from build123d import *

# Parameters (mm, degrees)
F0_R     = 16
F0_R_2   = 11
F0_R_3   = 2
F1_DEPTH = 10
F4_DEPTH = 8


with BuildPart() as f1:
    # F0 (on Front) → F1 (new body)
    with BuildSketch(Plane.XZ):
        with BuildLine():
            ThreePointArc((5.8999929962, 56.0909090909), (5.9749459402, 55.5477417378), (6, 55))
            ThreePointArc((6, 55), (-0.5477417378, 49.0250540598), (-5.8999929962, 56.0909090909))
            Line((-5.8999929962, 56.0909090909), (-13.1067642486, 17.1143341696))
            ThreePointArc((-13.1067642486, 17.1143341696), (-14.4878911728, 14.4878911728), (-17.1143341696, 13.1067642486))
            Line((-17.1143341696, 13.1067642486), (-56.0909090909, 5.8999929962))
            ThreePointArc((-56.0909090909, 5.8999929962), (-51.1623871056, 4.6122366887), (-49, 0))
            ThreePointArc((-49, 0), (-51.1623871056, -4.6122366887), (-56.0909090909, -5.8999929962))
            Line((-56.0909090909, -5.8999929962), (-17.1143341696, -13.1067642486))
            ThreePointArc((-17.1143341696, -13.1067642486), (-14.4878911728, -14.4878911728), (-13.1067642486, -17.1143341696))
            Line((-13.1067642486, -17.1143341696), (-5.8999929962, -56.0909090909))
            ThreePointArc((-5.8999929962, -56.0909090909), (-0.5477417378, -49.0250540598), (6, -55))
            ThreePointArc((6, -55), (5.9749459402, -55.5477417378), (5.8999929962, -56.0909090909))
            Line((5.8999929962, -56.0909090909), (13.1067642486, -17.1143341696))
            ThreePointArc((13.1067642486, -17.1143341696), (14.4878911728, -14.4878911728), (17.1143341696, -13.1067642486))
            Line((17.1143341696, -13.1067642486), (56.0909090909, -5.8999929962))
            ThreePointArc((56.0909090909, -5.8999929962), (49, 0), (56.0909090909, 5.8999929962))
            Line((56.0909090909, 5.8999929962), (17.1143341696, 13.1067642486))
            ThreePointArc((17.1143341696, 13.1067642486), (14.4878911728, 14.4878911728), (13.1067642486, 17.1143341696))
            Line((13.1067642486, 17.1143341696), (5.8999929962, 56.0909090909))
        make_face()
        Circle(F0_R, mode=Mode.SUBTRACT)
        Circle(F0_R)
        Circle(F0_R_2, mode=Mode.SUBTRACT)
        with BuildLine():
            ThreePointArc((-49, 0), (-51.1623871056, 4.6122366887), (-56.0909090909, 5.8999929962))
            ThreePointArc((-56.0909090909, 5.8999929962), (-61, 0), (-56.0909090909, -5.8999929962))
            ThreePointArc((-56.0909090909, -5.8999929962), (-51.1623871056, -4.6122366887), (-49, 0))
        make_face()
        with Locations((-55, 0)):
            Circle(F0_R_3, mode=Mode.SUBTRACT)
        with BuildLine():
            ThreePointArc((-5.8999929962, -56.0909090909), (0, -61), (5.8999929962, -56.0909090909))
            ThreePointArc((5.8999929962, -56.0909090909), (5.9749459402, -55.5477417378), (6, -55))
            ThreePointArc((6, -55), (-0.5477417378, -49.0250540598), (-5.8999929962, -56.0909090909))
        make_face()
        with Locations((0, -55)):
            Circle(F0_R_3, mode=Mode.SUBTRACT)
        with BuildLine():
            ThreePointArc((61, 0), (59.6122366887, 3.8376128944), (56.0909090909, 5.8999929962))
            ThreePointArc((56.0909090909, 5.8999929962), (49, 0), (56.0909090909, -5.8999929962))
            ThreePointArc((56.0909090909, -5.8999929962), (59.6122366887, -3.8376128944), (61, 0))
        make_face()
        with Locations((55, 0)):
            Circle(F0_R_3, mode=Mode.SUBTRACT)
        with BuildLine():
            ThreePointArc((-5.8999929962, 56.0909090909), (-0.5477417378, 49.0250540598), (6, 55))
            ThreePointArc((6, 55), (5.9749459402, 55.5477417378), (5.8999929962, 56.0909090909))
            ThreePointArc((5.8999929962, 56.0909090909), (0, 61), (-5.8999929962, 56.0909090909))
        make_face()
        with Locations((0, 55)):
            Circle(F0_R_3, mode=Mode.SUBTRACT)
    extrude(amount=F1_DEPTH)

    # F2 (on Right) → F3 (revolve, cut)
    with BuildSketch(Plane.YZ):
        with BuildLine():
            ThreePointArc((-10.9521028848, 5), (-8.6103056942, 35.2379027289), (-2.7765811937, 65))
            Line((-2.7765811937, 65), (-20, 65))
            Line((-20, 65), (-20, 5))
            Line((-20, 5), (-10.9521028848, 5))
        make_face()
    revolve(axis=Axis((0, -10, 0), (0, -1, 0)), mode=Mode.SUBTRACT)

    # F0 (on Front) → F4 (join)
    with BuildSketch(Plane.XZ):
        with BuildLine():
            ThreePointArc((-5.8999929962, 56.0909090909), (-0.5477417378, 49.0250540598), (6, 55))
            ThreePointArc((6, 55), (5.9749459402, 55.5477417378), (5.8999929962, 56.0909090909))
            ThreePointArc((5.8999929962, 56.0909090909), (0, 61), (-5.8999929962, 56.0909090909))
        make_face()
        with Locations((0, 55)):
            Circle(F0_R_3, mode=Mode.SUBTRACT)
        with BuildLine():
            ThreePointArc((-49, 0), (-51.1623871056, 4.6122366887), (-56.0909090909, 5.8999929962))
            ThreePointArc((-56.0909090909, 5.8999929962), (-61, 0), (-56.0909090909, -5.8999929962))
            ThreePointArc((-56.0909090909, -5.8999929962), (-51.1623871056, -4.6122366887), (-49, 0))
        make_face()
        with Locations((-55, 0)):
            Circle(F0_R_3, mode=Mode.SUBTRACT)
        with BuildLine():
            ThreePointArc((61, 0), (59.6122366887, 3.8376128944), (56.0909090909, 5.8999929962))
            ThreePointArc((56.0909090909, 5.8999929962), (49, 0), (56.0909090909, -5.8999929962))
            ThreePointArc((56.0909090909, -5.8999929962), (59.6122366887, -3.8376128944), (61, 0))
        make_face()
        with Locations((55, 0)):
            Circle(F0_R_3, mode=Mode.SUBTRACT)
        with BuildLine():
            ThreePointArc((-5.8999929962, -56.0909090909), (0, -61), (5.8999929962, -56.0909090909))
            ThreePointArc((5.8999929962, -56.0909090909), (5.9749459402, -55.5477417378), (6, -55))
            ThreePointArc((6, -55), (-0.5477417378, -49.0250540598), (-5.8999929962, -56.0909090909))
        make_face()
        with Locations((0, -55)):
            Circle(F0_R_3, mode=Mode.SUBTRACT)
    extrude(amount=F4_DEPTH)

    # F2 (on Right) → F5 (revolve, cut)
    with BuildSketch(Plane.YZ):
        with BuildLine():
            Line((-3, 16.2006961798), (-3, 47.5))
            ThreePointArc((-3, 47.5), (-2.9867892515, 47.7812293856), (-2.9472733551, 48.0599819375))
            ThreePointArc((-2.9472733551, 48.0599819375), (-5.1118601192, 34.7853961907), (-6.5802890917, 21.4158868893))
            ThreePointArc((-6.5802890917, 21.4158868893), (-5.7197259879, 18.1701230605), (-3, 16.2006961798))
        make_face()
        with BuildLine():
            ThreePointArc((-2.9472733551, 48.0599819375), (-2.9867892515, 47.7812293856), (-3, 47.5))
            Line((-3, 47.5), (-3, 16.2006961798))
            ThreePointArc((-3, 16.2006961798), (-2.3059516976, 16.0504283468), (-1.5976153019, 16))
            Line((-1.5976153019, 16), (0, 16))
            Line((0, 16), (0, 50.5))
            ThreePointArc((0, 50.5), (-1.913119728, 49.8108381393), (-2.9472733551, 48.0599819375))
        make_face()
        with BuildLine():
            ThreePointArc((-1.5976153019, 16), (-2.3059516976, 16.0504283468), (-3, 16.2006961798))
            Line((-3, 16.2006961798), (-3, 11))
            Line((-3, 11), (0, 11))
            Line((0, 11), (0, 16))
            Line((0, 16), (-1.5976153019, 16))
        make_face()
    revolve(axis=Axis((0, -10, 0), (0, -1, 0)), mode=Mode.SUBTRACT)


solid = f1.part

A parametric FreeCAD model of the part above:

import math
import FreeCAD as App
import Part
import Sketcher
Q = App.Units.Quantity

doc = App.newDocument("Part")
body = doc.addObject("PartDesign::Body", "Body")

# Sketch on XZ plane
sketch1 = doc.addObject("Sketcher::SketchObject", "Sketch")
body.addObject(sketch1)
sketch1.AttachmentSupport = (doc.XZ_Plane, [""])
sketch1.MapMode = "FlatFace"
sketch1.addGeometry(Part.LineSegment(App.Vector(13.106764, 17.114334, 0), App.Vector(5.899993, 56.090909, 0)), False)
sketch1.addGeometry(Part.ArcOfCircle(Part.Circle(App.Vector(0, 55, 0), App.Vector(0, 0, 1), 6), math.radians(10.475682), math.radians(169.524318)), False)
sketch1.addGeometry(Part.LineSegment(App.Vector(-5.899993, 56.090909, 0), App.Vector(-13.106764, 17.114334, 0)), False)
sketch1.addGeometry(Part.ArcOfCircle(Part.Circle(App.Vector(-18.023425, 18.023425, 0), App.Vector(0, 0, 1), 5), math.radians(-79.524318), math.radians(-10.475682)), False)
sketch1.addGeometry(Part.LineSegment(App.Vector(-17.114334, 13.106764, 0), App.Vector(-56.090909, 5.899993, 0)), False)
sketch1.addGeometry(Part.ArcOfCircle(Part.Circle(App.Vector(-55, 0, 0), App.Vector(0, 0, 1), 6), math.radians(100.475682), math.radians(259.524318)), False)
sketch1.addGeometry(Part.LineSegment(App.Vector(-56.090909, -5.899993, 0), App.Vector(-17.114334, -13.106764, 0)), False)
sketch1.addGeometry(Part.ArcOfCircle(Part.Circle(App.Vector(-18.023425, -18.023425, 0), App.Vector(0, 0, 1), 5), math.radians(10.475682), math.radians(79.524318)), False)
sketch1.addGeometry(Part.LineSegment(App.Vector(-13.106764, -17.114334, 0), App.Vector(-5.899993, -56.090909, 0)), False)
sketch1.addGeometry(Part.ArcOfCircle(Part.Circle(App.Vector(0, -55, 0), App.Vector(0, 0, 1), 6), math.radians(-169.524318), math.radians(-10.475682)), False)
sketch1.addGeometry(Part.LineSegment(App.Vector(5.899993, -56.090909, 0), App.Vector(13.106764, -17.114334, 0)), False)
sketch1.addGeometry(Part.ArcOfCircle(Part.Circle(App.Vector(18.023425, -18.023425, 0), App.Vector(0, 0, 1), 5), math.radians(100.475682), math.radians(169.524318)), False)
sketch1.addGeometry(Part.LineSegment(App.Vector(17.114334, -13.106764, 0), App.Vector(56.090909, -5.899993, 0)), False)
sketch1.addGeometry(Part.ArcOfCircle(Part.Circle(App.Vector(55, 0, 0), App.Vector(0, 0, 1), 6), math.radians(-79.524318), math.radians(0)), False)
sketch1.addGeometry(Part.ArcOfCircle(Part.Circle(App.Vector(55, 0, 0), App.Vector(0, 0, 1), 6), math.radians(0), math.radians(79.524318)), False)
sketch1.addGeometry(Part.LineSegment(App.Vector(56.090909, 5.899993, 0), App.Vector(17.114334, 13.106764, 0)), False)
sketch1.addGeometry(Part.ArcOfCircle(Part.Circle(App.Vector(18.023425, 18.023425, 0), App.Vector(0, 0, 1), 5), math.radians(-169.524318), math.radians(-100.475682)), False)
sketch1.addGeometry(Part.Circle(App.Vector(0, -55, 0), App.Vector(0, 0, 1), 2), False)
sketch1.addGeometry(Part.Circle(App.Vector(-55, 0, 0), App.Vector(0, 0, 1), 2), False)
sketch1.addGeometry(Part.Circle(App.Vector(0, 0, 0), App.Vector(0, 0, 1), 11), False)
sketch1.addGeometry(Part.Circle(App.Vector(55, 0, 0), App.Vector(0, 0, 1), 2), False)
sketch1.addGeometry(Part.Circle(App.Vector(0, 55, 0), App.Vector(0, 0, 1), 2), False)
sketch1.addConstraint(Sketcher.Constraint("Tangent", 0, 2, 1, 1))
sketch1.addConstraint(Sketcher.Constraint("Tangent", 1, 2, 2, 1))
sketch1.addConstraint(Sketcher.Constraint("Tangent", 2, 2, 3, 2))
sketch1.addConstraint(Sketcher.Constraint("Tangent", 3, 1, 4, 1))
sketch1.addConstraint(Sketcher.Constraint("Tangent", 4, 2, 5, 1))
sketch1.addConstraint(Sketcher.Constraint("Tangent", 5, 2, 6, 1))
sketch1.addConstraint(Sketcher.Constraint("Tangent", 6, 2, 7, 2))
sketch1.addConstraint(Sketcher.Constraint("Tangent", 7, 1, 8, 1))
sketch1.addConstraint(Sketcher.Constraint("Tangent", 8, 2, 9, 1))
sketch1.addConstraint(Sketcher.Constraint("Tangent", 9, 2, 10, 1))
sketch1.addConstraint(Sketcher.Constraint("Tangent", 10, 2, 11, 2))
sketch1.addConstraint(Sketcher.Constraint("Tangent", 11, 1, 12, 1))
sketch1.addConstraint(Sketcher.Constraint("Tangent", 12, 2, 13, 1))
sketch1.addConstraint(Sketcher.Constraint("Tangent", 13, 2, 14, 1))
sketch1.addConstraint(Sketcher.Constraint("Tangent", 14, 2, 15, 1))
sketch1.addConstraint(Sketcher.Constraint("Tangent", 15, 2, 16, 2))
sketch1.addConstraint(Sketcher.Constraint("Tangent", 16, 1, 0, 1))
sketch1.addConstraint(Sketcher.Constraint("Coincident", 19, 3, -1, 1))
sketch1.addConstraint(Sketcher.Constraint("Coincident", 17, 3, 9, 3))
sketch1.addConstraint(Sketcher.Constraint("Coincident", 18, 3, 5, 3))
sketch1.addConstraint(Sketcher.Constraint("Coincident", 20, 3, 13, 3))
sketch1.addConstraint(Sketcher.Constraint("Coincident", 21, 3, 1, 3))
sketch1.addConstraint(Sketcher.Constraint("Equal", 1, 5))
sketch1.addConstraint(Sketcher.Constraint("Equal", 3, 7))
sketch1.addConstraint(Sketcher.Constraint("Equal", 5, 9))
sketch1.addConstraint(Sketcher.Constraint("Equal", 7, 11))
sketch1.addConstraint(Sketcher.Constraint("Equal", 9, 13))
sketch1.addConstraint(Sketcher.Constraint("Equal", 13, 14))
sketch1.addConstraint(Sketcher.Constraint("Equal", 11, 16))
sketch1.addConstraint(Sketcher.Constraint("Equal", 17, 18))
sketch1.addConstraint(Sketcher.Constraint("Equal", 18, 20))
sketch1.addConstraint(Sketcher.Constraint("Equal", 20, 21))
sketch1.addConstraint(Sketcher.Constraint("Symmetric", 1, 3, 9, 3, -1, 1))
sketch1.addConstraint(Sketcher.Constraint("Symmetric", 3, 3, 11, 3, -1, 1))
sketch1.addConstraint(Sketcher.Constraint("Symmetric", 5, 3, 13, 3, -1, 1))
sketch1.addConstraint(Sketcher.Constraint("Symmetric", 7, 3, 16, 3, -1, 1))
sketch1.addConstraint(Sketcher.Constraint("Symmetric", 7, 3, 11, 3, -2))
sketch1.addConstraint(Sketcher.Constraint("PointOnObject", 1, 3, -2))
sketch1.addConstraint(Sketcher.Constraint("PointOnObject", 5, 3, -1))
sketch1.addConstraint(Sketcher.Constraint("PointOnObject", 13, 2, -1))
sketch1.addConstraint(Sketcher.Constraint("Perpendicular", 0, 4))
sketch1.addConstraint(Sketcher.Constraint("Equal", 2, 4))
sketch1.addConstraint(Sketcher.Constraint("Diameter", 17, Q("4 mm")))
sketch1.addConstraint(Sketcher.Constraint("Diameter", 19, Q("22 mm")))
sketch1.addConstraint(Sketcher.Constraint("Radius", 1, Q("6 mm")))
sketch1.addConstraint(Sketcher.Constraint("Radius", 3, Q("5 mm")))
sketch1.addConstraint(Sketcher.Constraint("DistanceY", -1, 1, 1, 3, Q("55 mm")))
sketch1.addConstraint(Sketcher.Constraint("DistanceY", 6, 2, 2, 2, Q("30.221098 mm")))
pad1 = doc.addObject("PartDesign::Pad", "Pad")
body.addObject(pad1)
pad1.Profile = sketch1
pad1.Length = 10

# Sketch on YZ plane
sketch2 = doc.addObject("Sketcher::SketchObject", "Sketch001")
body.addObject(sketch2)
sketch2.AttachmentSupport = (doc.YZ_Plane, [""])
sketch2.MapMode = "FlatFace"
sketch2.addGeometry(Part.ArcOfCircle(Part.Circle(App.Vector(250, 0, 0), App.Vector(0, 0, 1), 261), math.radians(165.579161), math.radians(178.902313)), False)
sketch2.addGeometry(Part.LineSegment(App.Vector(-2.776581, 65, 0), App.Vector(-20, 65, 0)), False)
sketch2.addGeometry(Part.LineSegment(App.Vector(-20, 65, 0), App.Vector(-20, 5, 0)), False)
sketch2.addGeometry(Part.LineSegment(App.Vector(-20, 5, 0), App.Vector(-10.952103, 5, 0)), False)
sketch2.addConstraint(Sketcher.Constraint("Coincident", 0, 1, 1, 1))
sketch2.addConstraint(Sketcher.Constraint("Coincident", 1, 2, 2, 1))
sketch2.addConstraint(Sketcher.Constraint("Coincident", 2, 2, 3, 1))
sketch2.addConstraint(Sketcher.Constraint("Coincident", 3, 2, 0, 2))
sketch2.addConstraint(Sketcher.Constraint("Horizontal", 1))
sketch2.addConstraint(Sketcher.Constraint("Vertical", 2))
sketch2.addConstraint(Sketcher.Constraint("Horizontal", 3))
sketch2.addConstraint(Sketcher.Constraint("PointOnObject", 0, 3, -1))
sketch2.addConstraint(Sketcher.Constraint("Radius", 0, Q("261 mm")))
sketch2.addConstraint(Sketcher.Constraint("DistanceY", 2, 2, 2, 1, Q("60 mm")))
sketch2.addConstraint(Sketcher.Constraint("DistanceX", -1, 1, 0, 3, Q("250 mm")))
sketch2.addConstraint(Sketcher.Constraint("DistanceX", 1, 2, -1, 1, Q("20 mm")))
sketch2.addConstraint(Sketcher.Constraint("DistanceY", -1, 1, 1, 2, Q("65 mm")))
groove = doc.addObject("PartDesign::Groove", "Groove")
body.addObject(groove)
groove.Profile = sketch2
groove.ReferenceAxis = (sketch2, ["H_Axis"])
groove.Angle = 360

# Sketch on XZ plane
sketch3 = doc.addObject("Sketcher::SketchObject", "Sketch002")
body.addObject(sketch3)
sketch3.AttachmentSupport = (doc.XZ_Plane, [""])
sketch3.MapMode = "FlatFace"
sketch3.addGeometry(Part.ArcOfCircle(Part.Circle(App.Vector(0, 55, 0), App.Vector(0, 0, 1), 6), math.radians(0), math.radians(10.475682)), False)
sketch3.addGeometry(Part.ArcOfCircle(Part.Circle(App.Vector(0, 55, 0), App.Vector(0, 0, 1), 6), math.radians(10.475682), math.radians(360)), False)
sketch3.addGeometry(Part.Circle(App.Vector(0, 55, 0), App.Vector(0, 0, 1), 2), False)
sketch3.addGeometry(Part.ArcOfCircle(Part.Circle(App.Vector(-55, 0, 0), App.Vector(0, 0, 1), 6), math.radians(0), math.radians(100.475682)), False)
sketch3.addGeometry(Part.ArcOfCircle(Part.Circle(App.Vector(-55, 0, 0), App.Vector(0, 0, 1), 6), math.radians(100.475682), math.radians(259.524318)), False)
sketch3.addGeometry(Part.ArcOfCircle(Part.Circle(App.Vector(-55, 0, 0), App.Vector(0, 0, 1), 6), math.radians(-100.475682), math.radians(0)), False)
sketch3.addGeometry(Part.Circle(App.Vector(-55, 0, 0), App.Vector(0, 0, 1), 2), False)
sketch3.addGeometry(Part.ArcOfCircle(Part.Circle(App.Vector(55, 0, 0), App.Vector(0, 0, 1), 6), math.radians(0), math.radians(79.524318)), False)
sketch3.addGeometry(Part.ArcOfCircle(Part.Circle(App.Vector(55, 0, 0), App.Vector(0, 0, 1), 6), math.radians(79.524318), math.radians(280.475682)), False)
sketch3.addGeometry(Part.ArcOfCircle(Part.Circle(App.Vector(55, 0, 0), App.Vector(0, 0, 1), 6), math.radians(-79.524318), math.radians(0)), False)
sketch3.addGeometry(Part.Circle(App.Vector(55, 0, 0), App.Vector(0, 0, 1), 2), False)
sketch3.addGeometry(Part.ArcOfCircle(Part.Circle(App.Vector(0, -55, 0), App.Vector(0, 0, 1), 6), math.radians(-10.475682), math.radians(0)), False)
sketch3.addGeometry(Part.ArcOfCircle(Part.Circle(App.Vector(0, -55, 0), App.Vector(0, 0, 1), 6), math.radians(0), math.radians(349.524318)), False)
sketch3.addGeometry(Part.Circle(App.Vector(0, -55, 0), App.Vector(0, 0, 1), 2), False)
sketch3.addConstraint(Sketcher.Constraint("Tangent", 0, 1, 1, 2))
sketch3.addConstraint(Sketcher.Constraint("Coincident", 1, 1, 0, 2))
sketch3.addConstraint(Sketcher.Constraint("Tangent", 3, 2, 4, 1))
sketch3.addConstraint(Sketcher.Constraint("Tangent", 4, 2, 5, 1))
sketch3.addConstraint(Sketcher.Constraint("Tangent", 5, 2, 3, 1))
sketch3.addConstraint(Sketcher.Constraint("Tangent", 7, 2, 8, 1))
sketch3.addConstraint(Sketcher.Constraint("Tangent", 8, 2, 9, 1))
sketch3.addConstraint(Sketcher.Constraint("Tangent", 9, 2, 7, 1))
sketch3.addConstraint(Sketcher.Constraint("Tangent", 11, 1, 12, 2))
sketch3.addConstraint(Sketcher.Constraint("Coincident", 12, 1, 11, 2))
sketch3.addConstraint(Sketcher.Constraint("Coincident", 2, 3, 0, 3))
sketch3.addConstraint(Sketcher.Constraint("Coincident", 6, 3, 3, 3))
sketch3.addConstraint(Sketcher.Constraint("Coincident", 10, 3, 7, 3))
sketch3.addConstraint(Sketcher.Constraint("Coincident", 13, 3, 11, 3))
sketch3.addConstraint(Sketcher.Constraint("Equal", 1, 3))
sketch3.addConstraint(Sketcher.Constraint("Equal", 2, 6))
sketch3.addConstraint(Sketcher.Constraint("Equal", 5, 7))
sketch3.addConstraint(Sketcher.Constraint("Equal", 6, 10))
sketch3.addConstraint(Sketcher.Constraint("Equal", 9, 11))
sketch3.addConstraint(Sketcher.Constraint("Equal", 10, 13))
sketch3.addConstraint(Sketcher.Constraint("Symmetric", 3, 3, 7, 3, -1, 1))
sketch3.addConstraint(Sketcher.Constraint("Symmetric", 0, 3, 11, 3, -1, 1))
sketch3.addConstraint(Sketcher.Constraint("Symmetric", 3, 2, 7, 2, -2))
sketch3.addConstraint(Sketcher.Constraint("Symmetric", 1, 1, 11, 1, -1))
sketch3.addConstraint(Sketcher.Constraint("PointOnObject", 5, 2, -1))
sketch3.addConstraint(Sketcher.Constraint("PointOnObject", 9, 2, -1))
sketch3.addConstraint(Sketcher.Constraint("Horizontal", 2, 3, 0, 1))
sketch3.addConstraint(Sketcher.Constraint("Horizontal", 4, 2, 8, 2))
sketch3.addConstraint(Sketcher.Constraint("Horizontal", 13, 3, 12, 1))
sketch3.addConstraint(Sketcher.Constraint("Vertical", 3, 2, 4, 2))
sketch3.addConstraint(Sketcher.Constraint("Diameter", 2, Q("4 mm")))
sketch3.addConstraint(Sketcher.Constraint("Radius", 0, Q("6 mm")))
sketch3.addConstraint(Sketcher.Constraint("DistanceY", -1, 1, 0, 3, Q("55 mm")))
sketch3.addConstraint(Sketcher.Constraint("DistanceX", 3, 3, -1, 1, Q("55 mm")))
sketch3.addConstraint(Sketcher.Constraint("DistanceY", -1, 1, 1, 1, Q("56.090909 mm")))
sketch3.addConstraint(Sketcher.Constraint("DistanceX", 3, 2, -1, 1, Q("56.090909 mm")))
pad2 = doc.addObject("PartDesign::Pad", "Pad001")
body.addObject(pad2)
pad2.Profile = sketch3
pad2.Length = 8

# Sketch on YZ plane
sketch4 = doc.addObject("Sketcher::SketchObject", "Sketch003")
body.addObject(sketch4)
sketch4.AttachmentSupport = (doc.YZ_Plane, [""])
sketch4.MapMode = "FlatFace"
sketch4.addGeometry(Part.ArcOfCircle(Part.Circle(App.Vector(250, 0, 0), App.Vector(0, 0, 1), 257.472494), math.radians(169.242033), math.radians(175.228775)), False)
sketch4.addGeometry(Part.ArcOfCircle(Part.Circle(App.Vector(-1.597615, 21, 0), App.Vector(0, 0, 1), 5), math.radians(175.228775), math.radians(253.711328)), False)
sketch4.addGeometry(Part.LineSegment(App.Vector(-3, 16.200696, 0), App.Vector(-3, 11, 0)), False)
sketch4.addGeometry(Part.LineSegment(App.Vector(-3, 11, 0), App.Vector(0, 11, 0)), False)
sketch4.addGeometry(Part.LineSegment(App.Vector(0, 11, 0), App.Vector(0, 50.5, 0)), False)
sketch4.addGeometry(Part.ArcOfCircle(Part.Circle(App.Vector(0, 47.5, 0), App.Vector(0, 0, 1), 3), math.radians(90), math.radians(169.242033)), False)
sketch4.addConstraint(Sketcher.Constraint("Tangent", 0, 2, 1, 1))
sketch4.addConstraint(Sketcher.Constraint("Coincident", 1, 2, 2, 1))
sketch4.addConstraint(Sketcher.Constraint("Coincident", 2, 2, 3, 1))
sketch4.addConstraint(Sketcher.Constraint("Coincident", 3, 2, 4, 1))
sketch4.addConstraint(Sketcher.Constraint("Coincident", 4, 2, 5, 1))
sketch4.addConstraint(Sketcher.Constraint("Tangent", 5, 2, 0, 1))
sketch4.addConstraint(Sketcher.Constraint("Vertical", 2))
sketch4.addConstraint(Sketcher.Constraint("Horizontal", 3))
sketch4.addConstraint(Sketcher.Constraint("Vertical", 4))
sketch4.addConstraint(Sketcher.Constraint("PointOnObject", 0, 3, -1))
sketch4.addConstraint(Sketcher.Constraint("PointOnObject", 5, 3, -2))
sketch4.addConstraint(Sketcher.Constraint("PointOnObject", 3, 2, -2))
sketch4.addConstraint(Sketcher.Constraint("Radius", 1, Q("5 mm")))
sketch4.addConstraint(Sketcher.Constraint("Radius", 5, Q("3 mm")))
sketch4.addConstraint(Sketcher.Constraint("DistanceX", 3, 1, 3, 2, Q("3 mm")))
sketch4.addConstraint(Sketcher.Constraint("DistanceY", 4, 1, 4, 2, Q("39.5 mm")))
sketch4.addConstraint(Sketcher.Constraint("DistanceX", -1, 1, 0, 3, Q("250 mm")))
sketch4.addConstraint(Sketcher.Constraint("DistanceY", -1, 1, 1, 3, Q("21 mm")))
sketch4.addConstraint(Sketcher.Constraint("DistanceY", -1, 1, 2, 2, Q("11 mm")))
groove2 = doc.addObject("PartDesign::Groove", "Groove001")
body.addObject(groove2)
groove2.Profile = sketch4
groove2.ReferenceAxis = (sketch4, ["H_Axis"])
groove2.Angle = 360

doc.recompute()
